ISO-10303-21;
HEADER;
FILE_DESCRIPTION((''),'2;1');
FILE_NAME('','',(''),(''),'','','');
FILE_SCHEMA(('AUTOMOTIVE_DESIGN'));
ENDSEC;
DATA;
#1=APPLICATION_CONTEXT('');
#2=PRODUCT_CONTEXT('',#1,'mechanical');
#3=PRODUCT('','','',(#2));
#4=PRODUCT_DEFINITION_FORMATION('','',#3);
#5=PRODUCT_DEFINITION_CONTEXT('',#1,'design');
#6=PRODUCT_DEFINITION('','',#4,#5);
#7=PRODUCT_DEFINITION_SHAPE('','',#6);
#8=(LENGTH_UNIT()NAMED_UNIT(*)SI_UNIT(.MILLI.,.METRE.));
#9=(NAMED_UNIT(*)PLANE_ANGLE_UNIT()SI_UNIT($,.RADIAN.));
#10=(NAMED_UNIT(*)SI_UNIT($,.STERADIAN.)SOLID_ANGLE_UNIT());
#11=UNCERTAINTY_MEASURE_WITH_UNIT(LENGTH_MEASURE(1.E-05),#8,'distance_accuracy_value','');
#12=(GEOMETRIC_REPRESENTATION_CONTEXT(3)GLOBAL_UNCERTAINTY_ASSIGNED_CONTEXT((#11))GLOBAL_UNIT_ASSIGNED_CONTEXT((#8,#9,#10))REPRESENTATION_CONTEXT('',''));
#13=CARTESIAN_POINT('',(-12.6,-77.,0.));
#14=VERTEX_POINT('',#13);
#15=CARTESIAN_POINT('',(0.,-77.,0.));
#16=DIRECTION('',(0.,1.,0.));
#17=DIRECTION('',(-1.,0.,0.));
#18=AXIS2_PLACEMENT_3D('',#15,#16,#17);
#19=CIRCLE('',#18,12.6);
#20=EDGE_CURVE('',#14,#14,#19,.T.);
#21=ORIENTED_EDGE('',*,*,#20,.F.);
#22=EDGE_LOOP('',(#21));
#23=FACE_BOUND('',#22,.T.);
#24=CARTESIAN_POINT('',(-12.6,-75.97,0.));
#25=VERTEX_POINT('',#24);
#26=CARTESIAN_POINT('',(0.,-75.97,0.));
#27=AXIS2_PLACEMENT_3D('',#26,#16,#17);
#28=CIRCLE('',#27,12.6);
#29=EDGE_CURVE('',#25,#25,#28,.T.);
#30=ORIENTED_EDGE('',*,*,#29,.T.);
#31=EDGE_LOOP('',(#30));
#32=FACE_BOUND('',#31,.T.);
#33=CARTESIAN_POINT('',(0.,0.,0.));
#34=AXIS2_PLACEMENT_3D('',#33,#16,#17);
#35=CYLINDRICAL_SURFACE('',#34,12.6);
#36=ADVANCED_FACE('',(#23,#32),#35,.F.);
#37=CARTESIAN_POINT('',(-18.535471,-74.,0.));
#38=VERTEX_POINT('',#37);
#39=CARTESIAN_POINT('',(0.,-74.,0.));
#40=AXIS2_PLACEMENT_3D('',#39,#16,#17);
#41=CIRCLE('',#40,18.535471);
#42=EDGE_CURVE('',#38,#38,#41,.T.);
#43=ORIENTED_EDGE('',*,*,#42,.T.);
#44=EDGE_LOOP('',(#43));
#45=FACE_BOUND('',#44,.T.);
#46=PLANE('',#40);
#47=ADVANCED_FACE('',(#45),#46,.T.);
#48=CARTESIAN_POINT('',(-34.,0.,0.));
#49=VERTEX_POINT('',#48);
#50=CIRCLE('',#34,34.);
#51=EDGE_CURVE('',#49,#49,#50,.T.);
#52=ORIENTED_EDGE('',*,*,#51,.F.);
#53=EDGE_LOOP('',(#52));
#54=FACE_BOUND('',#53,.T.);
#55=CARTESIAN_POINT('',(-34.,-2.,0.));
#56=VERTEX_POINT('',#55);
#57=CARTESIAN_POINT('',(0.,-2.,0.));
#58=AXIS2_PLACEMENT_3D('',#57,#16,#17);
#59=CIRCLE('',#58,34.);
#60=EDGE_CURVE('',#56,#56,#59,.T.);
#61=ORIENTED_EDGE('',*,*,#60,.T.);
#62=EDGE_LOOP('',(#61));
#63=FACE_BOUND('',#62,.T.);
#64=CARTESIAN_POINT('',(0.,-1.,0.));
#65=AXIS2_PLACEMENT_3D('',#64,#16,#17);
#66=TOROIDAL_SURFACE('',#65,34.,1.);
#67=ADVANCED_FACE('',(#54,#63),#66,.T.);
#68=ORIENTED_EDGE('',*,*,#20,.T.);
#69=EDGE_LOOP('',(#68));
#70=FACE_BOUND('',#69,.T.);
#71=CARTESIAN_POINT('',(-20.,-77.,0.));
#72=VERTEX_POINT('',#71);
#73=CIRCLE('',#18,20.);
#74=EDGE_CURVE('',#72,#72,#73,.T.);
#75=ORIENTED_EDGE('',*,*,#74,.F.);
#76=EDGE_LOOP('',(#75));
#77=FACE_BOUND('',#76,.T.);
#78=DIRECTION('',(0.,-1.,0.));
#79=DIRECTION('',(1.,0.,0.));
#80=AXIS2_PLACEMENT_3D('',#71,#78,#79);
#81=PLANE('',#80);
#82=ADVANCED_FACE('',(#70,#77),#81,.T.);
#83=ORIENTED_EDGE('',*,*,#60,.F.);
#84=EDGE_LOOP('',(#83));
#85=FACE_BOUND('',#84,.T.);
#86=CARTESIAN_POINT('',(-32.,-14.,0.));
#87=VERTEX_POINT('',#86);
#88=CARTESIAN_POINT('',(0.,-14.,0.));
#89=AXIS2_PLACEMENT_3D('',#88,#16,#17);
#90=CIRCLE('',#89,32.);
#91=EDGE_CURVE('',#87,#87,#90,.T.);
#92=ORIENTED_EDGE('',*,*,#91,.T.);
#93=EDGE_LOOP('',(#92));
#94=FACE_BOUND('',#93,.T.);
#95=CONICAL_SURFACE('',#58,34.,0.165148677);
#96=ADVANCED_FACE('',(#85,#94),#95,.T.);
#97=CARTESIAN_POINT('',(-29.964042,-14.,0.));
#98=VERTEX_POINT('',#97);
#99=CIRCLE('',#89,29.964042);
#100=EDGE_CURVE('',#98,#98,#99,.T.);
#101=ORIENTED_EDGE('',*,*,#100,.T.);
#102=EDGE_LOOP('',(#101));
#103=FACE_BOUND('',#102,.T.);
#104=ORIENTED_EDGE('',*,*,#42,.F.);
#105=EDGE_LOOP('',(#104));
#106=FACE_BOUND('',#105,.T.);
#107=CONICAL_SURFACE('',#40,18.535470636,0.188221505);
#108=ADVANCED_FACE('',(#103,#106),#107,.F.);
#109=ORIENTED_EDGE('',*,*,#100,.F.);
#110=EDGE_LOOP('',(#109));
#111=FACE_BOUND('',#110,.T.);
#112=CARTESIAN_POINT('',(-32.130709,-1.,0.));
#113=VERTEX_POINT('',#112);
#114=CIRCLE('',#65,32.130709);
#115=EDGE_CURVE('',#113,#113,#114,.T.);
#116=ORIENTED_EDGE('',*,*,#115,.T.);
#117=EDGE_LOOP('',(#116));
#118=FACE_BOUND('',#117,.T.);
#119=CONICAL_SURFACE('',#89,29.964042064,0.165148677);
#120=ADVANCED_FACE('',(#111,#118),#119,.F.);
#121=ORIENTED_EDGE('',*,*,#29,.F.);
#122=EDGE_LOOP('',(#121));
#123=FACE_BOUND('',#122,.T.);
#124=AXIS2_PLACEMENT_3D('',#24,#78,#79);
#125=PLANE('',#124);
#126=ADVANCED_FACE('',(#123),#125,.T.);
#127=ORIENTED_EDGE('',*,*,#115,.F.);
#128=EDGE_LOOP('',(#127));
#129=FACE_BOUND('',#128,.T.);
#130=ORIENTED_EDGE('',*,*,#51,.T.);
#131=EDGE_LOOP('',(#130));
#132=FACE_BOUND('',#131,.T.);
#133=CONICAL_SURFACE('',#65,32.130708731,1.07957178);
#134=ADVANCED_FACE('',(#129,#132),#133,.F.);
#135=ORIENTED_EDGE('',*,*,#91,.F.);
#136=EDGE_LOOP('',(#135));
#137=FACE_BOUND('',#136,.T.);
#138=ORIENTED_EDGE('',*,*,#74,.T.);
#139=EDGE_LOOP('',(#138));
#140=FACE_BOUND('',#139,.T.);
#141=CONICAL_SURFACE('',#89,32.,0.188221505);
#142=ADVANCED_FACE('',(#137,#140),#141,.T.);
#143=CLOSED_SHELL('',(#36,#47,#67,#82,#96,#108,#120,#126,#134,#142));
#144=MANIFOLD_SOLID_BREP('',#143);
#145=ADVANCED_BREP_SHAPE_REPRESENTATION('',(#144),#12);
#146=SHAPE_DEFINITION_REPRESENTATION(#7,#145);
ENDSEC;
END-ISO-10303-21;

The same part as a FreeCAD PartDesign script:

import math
import FreeCAD as App
import Part
import Sketcher
Q = App.Units.Quantity

doc = App.newDocument("Part")
params = doc.addObject("Spreadsheet::Sheet", "Params")
for row, (alias, value) in enumerate([
    ("sketch1_radius", "1 mm"),
    ("sketch1_width", "7.4 mm"),
    ("sketch1_width2", "12.6 mm"),
    ("sketch1_height", "1.03 mm"),
    ("revolution_angle", "360 deg"),
], start=1):
    params.set(f"A{row}", alias)
    params.set(f"B{row}", "=" + value)
    params.setAlias(f"B{row}", alias)

body = doc.addObject("PartDesign::Body", "Body")

# Sketch on XY plane
sketch1 = body.newObject("Sketcher::SketchObject", "Sketch")
sketch1.AttachmentSupport = (doc.getObject("XY_Plane"), [""])
sketch1.MapMode = "FlatFace"
sketch1.addGeometry([
    Part.LineSegment(App.Vector(-32.130709, -1, 0), App.Vector(-34, 0, 0)),  # 0
    Part.ArcOfCircle(Part.Circle(App.Vector(-34, -1, 0), App.Vector(0, 0, 1), 1), math.radians(90), math.radians(270)),  # 1
    Part.LineSegment(App.Vector(-34, -2, 0), App.Vector(-32, -14, 0)),  # 2
    Part.LineSegment(App.Vector(-32, -14, 0), App.Vector(-20, -77, 0)),  # 3
    Part.LineSegment(App.Vector(-20, -77, 0), App.Vector(-12.6, -77, 0)),  # 4
    Part.LineSegment(App.Vector(-12.6, -77, 0), App.Vector(-12.6, -75.97, 0)),  # 5
    Part.LineSegment(App.Vector(-12.6, -75.97, 0), App.Vector(0, -75.97, 0)),  # 6
    Part.LineSegment(App.Vector(0, -75.97, 0), App.Vector(0, -74, 0)),  # 7
    Part.LineSegment(App.Vector(0, -74, 0), App.Vector(-18.535471, -74, 0)),  # 8
    Part.LineSegment(App.Vector(-18.535471, -74, 0), App.Vector(-29.964042, -14, 0)),  # 9
    Part.LineSegment(App.Vector(-29.964042, -14, 0), App.Vector(-32.130709, -1, 0)),  # 10
], False)
sketch1.addConstraint([
    Sketcher.Constraint("Coincident", 0, 2, 1, 1),
    Sketcher.Constraint("Coincident", 1, 2, 2, 1),
    Sketcher.Constraint("Coincident", 2, 2, 3, 1),
    Sketcher.Constraint("Coincident", 3, 2, 4, 1),
    Sketcher.Constraint("Coincident", 4, 2, 5, 1),
    Sketcher.Constraint("Coincident", 5, 2, 6, 1),
    Sketcher.Constraint("Coincident", 6, 2, 7, 1),
    Sketcher.Constraint("Coincident", 7, 2, 8, 1),
    Sketcher.Constraint("Coincident", 8, 2, 9, 1),
    Sketcher.Constraint("Coincident", 9, 2, 10, 1),
    Sketcher.Constraint("Coincident", 10, 2, 0, 1),
    Sketcher.Constraint("Horizontal", 4),
    Sketcher.Constraint("Vertical", 5),
    Sketcher.Constraint("Horizontal", 6),
    Sketcher.Constraint("Vertical", 7),
    Sketcher.Constraint("Horizontal", 8),
    Sketcher.Constraint("PointOnObject", 0, 2, -1),
    Sketcher.Constraint("PointOnObject", 6, 2, -2),
    Sketcher.Constraint("Parallel", 3, 9),
    Sketcher.Constraint("Parallel", 2, 10),
    Sketcher.Constraint("Horizontal", 2, 2, 9, 2),
    Sketcher.Constraint("Horizontal", 1, 3, 10, 2),
    Sketcher.Constraint("Vertical", 1, 3, 0, 2),
    Sketcher.Constraint("Vertical", 0, 2, 1, 2),
    Sketcher.Constraint("Radius", 1, Q("1 mm")),
    Sketcher.Constraint("DistanceX", 4, 1, 4, 2, Q("7.4 mm")),
    Sketcher.Constraint("DistanceX", 6, 1, 6, 2, Q("12.6 mm")),
    Sketcher.Constraint("DistanceX", 1, 3, -1, 1, Q("34 mm")),
    Sketcher.Constraint("DistanceX", 2, 2, -1, 1, Q("32 mm")),
    Sketcher.Constraint("DistanceY", 2, 2, -1, 1, Q("14 mm")),
    Sketcher.Constraint("DistanceY", 3, 2, -1, 1, Q("77 mm")),
    Sketcher.Constraint("DistanceY", 7, 2, -1, 1, Q("74 mm")),
    Sketcher.Constraint("DistanceY", 5, 1, 5, 2, Q("1.03 mm")),
    Sketcher.Constraint("DistanceX", 8, 2, 8, 1, Q("18.535471 mm")),
])
sketch1.setExpression("Constraints[24]", "Params.sketch1_radius")
sketch1.setExpression("Constraints[25]", "Params.sketch1_width")
sketch1.setExpression("Constraints[26]", "Params.sketch1_width2")
sketch1.setExpression("Constraints[32]", "Params.sketch1_height")
revolution = body.newObject("PartDesign::Revolution", "Revolution")
revolution.Profile = sketch1
revolution.ReferenceAxis = (sketch1, ["V_Axis"])
revolution.setExpression("Angle", "Params.revolution_angle")

doc.recompute()
